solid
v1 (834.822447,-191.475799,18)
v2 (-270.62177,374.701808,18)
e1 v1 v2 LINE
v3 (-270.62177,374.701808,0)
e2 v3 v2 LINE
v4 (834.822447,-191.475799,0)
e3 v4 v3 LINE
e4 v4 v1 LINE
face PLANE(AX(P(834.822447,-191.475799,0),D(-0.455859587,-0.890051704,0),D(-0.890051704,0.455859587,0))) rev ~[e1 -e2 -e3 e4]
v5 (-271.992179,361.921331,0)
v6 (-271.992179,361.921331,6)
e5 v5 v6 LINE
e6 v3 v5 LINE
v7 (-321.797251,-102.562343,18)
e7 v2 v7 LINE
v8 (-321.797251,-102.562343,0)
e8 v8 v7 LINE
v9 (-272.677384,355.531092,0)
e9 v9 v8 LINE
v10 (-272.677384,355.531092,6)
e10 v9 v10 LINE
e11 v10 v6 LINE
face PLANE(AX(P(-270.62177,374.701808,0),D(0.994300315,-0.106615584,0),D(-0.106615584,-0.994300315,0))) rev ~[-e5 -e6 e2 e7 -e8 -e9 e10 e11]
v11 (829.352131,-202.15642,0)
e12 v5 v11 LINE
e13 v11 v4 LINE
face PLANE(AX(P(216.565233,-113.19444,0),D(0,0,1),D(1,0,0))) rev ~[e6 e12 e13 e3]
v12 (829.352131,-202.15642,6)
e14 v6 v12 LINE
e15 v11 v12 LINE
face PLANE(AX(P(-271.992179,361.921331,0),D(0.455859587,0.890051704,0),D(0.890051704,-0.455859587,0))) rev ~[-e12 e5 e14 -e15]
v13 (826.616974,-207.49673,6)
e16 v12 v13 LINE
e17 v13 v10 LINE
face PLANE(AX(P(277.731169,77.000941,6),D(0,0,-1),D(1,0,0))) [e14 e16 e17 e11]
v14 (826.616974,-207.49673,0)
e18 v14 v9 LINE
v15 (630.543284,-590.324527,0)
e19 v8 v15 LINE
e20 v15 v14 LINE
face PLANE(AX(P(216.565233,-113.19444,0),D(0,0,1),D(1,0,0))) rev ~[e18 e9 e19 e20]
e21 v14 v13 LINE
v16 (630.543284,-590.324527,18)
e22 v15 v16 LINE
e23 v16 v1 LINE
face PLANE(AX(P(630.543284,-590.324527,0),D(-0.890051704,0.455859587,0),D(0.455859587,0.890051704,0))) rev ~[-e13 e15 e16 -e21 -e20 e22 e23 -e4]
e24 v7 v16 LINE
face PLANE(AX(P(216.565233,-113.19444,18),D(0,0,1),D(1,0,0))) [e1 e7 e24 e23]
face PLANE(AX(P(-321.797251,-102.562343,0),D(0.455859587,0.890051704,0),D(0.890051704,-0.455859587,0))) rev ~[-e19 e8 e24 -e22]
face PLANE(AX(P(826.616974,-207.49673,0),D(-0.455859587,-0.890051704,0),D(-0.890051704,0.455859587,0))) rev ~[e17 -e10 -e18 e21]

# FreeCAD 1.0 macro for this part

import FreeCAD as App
import Part
import Sketcher
from FreeCAD import Vector
Q = App.Units.Quantity

doc = App.newDocument("Part")
body = doc.addObject("PartDesign::Body", "Body")

# Sketch on XY plane
sketch1 = doc.addObject("Sketcher::SketchObject", "Sketch")
body.addObject(sketch1)
sketch1.AttachmentSupport = (doc.XY_Plane, [""])
sketch1.MapMode = "FlatFace"
sketch1.addGeometry(Part.LineSegment(Vector(835, -191, 0), Vector(-271, 375, 0)), False)
sketch1.addGeometry(Part.LineSegment(Vector(-271, 375, 0), Vector(-322, -103, 0)), False)
sketch1.addGeometry(Part.LineSegment(Vector(-322, -103, 0), Vector(631, -590, 0)), False)
sketch1.addGeometry(Part.LineSegment(Vector(631, -590, 0), Vector(835, -191, 0)), False)
sketch1.addConstraint(Sketcher.Constraint("Coincident", 0, 2, 1, 1))
sketch1.addConstraint(Sketcher.Constraint("Coincident", 1, 2, 2, 1))
sketch1.addConstraint(Sketcher.Constraint("Coincident", 2, 2, 3, 1))
sketch1.addConstraint(Sketcher.Constraint("Coincident", 3, 2, 0, 1))
sketch1.addConstraint(Sketcher.Constraint("Parallel", 0, 2))
sketch1.addConstraint(Sketcher.Constraint("Perpendicular", 2, 3))
sketch1.addConstraint(Sketcher.Constraint("Distance", 0, Q("1242 mm")))
sketch1.addConstraint(Sketcher.Constraint("Distance", 1, Q("480 mm")))
sketch1.addConstraint(Sketcher.Constraint("DistanceY", 3, 2, -1, 1, Q("191.475799 mm")))
sketch1.addConstraint(Sketcher.Constraint("DistanceX", 0, 2, -1, 1, Q("270.62177 mm")))
sketch1.addConstraint(Sketcher.Constraint("DistanceY", -1, 1, 0, 2, Q("374.701808 mm")))
sketch1.addConstraint(Sketcher.Constraint("DistanceX", 1, 2, -1, 1, Q("321.797251 mm")))
pad1 = doc.addObject("PartDesign::Pad", "Pad")
body.addObject(pad1)
pad1.Profile = sketch1
pad1.Length = 18

# Sketch on XY plane
sketch2 = doc.addObject("Sketcher::SketchObject", "Sketch001")
body.addObject(sketch2)
sketch2.AttachmentSupport = (doc.XY_Plane, [""])
sketch2.MapMode = "FlatFace"
sketch2.addGeometry(Part.LineSegment(Vector(-272, 362, 0), Vector(829, -202, 0)), False)
sketch2.addGeometry(Part.LineSegment(Vector(829, -202, 0), Vector(827, -207, 0)), False)
sketch2.addGeometry(Part.LineSegment(Vector(827, -207, 0), Vector(-273, 356, 0)), False)
sketch2.addGeometry(Part.LineSegment(Vector(-273, 356, 0), Vector(-272, 362, 0)), False)
sketch2.addConstraint(Sketcher.Constraint("Coincident", 0, 2, 1, 1))
sketch2.addConstraint(Sketcher.Constraint("Coincident", 1, 2, 2, 1))
sketch2.addConstraint(Sketcher.Constraint("Coincident", 2, 2, 3, 1))
sketch2.addConstraint(Sketcher.Constraint("Coincident", 3, 2, 0, 1))
sketch2.addConstraint(Sketcher.Constraint("Perpendicular", 0, 1))
sketch2.addConstraint(Sketcher.Constraint("Perpendicular", 1, 2))
sketch2.addConstraint(Sketcher.Constraint("Distance", 1, Q("6 mm")))
sketch2.addConstraint(Sketcher.Constraint("Distance", 0, Q("1237.393632 mm")))
sketch2.addConstraint(Sketcher.Constraint("Distance", 3, Q("6.42687 mm")))
sketch2.addConstraint(Sketcher.Constraint("DistanceX", -1, 1, 0, 2, Q("829.352131 mm")))
sketch2.addConstraint(Sketcher.Constraint("DistanceY", 0, 2, -1, 1, Q("202.15642 mm")))
sketch2.addConstraint(Sketcher.Constraint("DistanceY", -1, 1, 2, 2, Q("355.531092 mm")))
pocket1 = doc.addObject("PartDesign::Pocket", "Pocket")
body.addObject(pocket1)
pocket1.Profile = sketch2
pocket1.Length = 6
pocket1.Reversed = True

doc.recompute()
